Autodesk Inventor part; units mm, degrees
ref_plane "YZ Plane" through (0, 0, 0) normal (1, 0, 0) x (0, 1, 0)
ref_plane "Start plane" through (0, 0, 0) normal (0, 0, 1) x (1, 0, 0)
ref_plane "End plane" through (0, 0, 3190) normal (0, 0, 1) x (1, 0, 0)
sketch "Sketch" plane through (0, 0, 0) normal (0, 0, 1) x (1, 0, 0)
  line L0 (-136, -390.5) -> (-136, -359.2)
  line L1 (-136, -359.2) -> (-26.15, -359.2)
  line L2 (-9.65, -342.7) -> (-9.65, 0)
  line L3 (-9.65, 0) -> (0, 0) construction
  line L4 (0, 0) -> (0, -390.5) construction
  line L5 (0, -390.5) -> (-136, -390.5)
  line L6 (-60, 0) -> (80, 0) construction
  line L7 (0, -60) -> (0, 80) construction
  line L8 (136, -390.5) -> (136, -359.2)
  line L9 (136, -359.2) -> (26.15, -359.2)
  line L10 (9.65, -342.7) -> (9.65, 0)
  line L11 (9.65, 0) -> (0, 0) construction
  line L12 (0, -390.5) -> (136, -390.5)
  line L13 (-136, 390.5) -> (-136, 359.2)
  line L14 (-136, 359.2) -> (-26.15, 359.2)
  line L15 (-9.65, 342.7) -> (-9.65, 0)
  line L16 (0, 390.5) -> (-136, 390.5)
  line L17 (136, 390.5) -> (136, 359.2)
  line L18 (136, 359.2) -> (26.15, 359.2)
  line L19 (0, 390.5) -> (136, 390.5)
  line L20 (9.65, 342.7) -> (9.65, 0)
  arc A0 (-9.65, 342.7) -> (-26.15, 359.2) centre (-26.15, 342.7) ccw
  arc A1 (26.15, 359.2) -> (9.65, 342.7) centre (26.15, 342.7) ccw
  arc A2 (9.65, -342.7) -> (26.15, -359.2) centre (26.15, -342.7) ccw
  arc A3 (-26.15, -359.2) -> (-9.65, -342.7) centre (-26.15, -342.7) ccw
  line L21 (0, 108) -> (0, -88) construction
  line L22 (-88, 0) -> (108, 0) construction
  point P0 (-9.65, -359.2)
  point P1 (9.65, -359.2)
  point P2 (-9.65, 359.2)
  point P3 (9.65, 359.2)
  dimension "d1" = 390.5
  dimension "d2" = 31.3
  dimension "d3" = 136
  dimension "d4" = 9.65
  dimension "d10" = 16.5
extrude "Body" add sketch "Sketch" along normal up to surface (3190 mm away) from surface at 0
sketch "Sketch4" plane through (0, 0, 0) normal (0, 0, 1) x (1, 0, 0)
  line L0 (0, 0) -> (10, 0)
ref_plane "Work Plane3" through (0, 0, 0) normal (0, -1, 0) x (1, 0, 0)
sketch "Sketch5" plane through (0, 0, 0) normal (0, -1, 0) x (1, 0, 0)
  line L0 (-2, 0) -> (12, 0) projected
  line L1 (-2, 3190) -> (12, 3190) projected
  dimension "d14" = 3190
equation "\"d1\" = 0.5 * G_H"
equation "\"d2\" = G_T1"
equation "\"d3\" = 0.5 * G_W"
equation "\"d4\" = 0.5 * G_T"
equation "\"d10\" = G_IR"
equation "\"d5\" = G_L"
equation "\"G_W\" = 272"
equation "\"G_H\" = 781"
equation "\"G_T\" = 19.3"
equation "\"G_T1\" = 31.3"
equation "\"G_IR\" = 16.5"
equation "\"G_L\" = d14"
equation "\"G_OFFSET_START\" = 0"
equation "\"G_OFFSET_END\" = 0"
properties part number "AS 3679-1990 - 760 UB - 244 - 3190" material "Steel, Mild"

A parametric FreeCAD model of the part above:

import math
import FreeCAD as App
import Part
import Sketcher
Q = App.Units.Quantity

doc = App.newDocument("Part")
body = doc.addObject("PartDesign::Body", "Body")

# Sketch on XY plane
sketch1 = body.newObject("Sketcher::SketchObject", "Sketch")
sketch1.AttachmentSupport = (doc.getObject("XY_Plane"), [""])
sketch1.MapMode = "FlatFace"
sketch1.addGeometry(Part.LineSegment(App.Vector(-136, -359, 0), App.Vector(-136, -390, 0)), False)
sketch1.addGeometry(Part.LineSegment(App.Vector(-136, -390, 0), App.Vector(136, -390, 0)), False)
sketch1.addGeometry(Part.LineSegment(App.Vector(136, -390, 0), App.Vector(136, -359, 0)), False)
sketch1.addGeometry(Part.LineSegment(App.Vector(136, -359, 0), App.Vector(26, -359, 0)), False)
sketch1.addGeometry(Part.ArcOfCircle(Part.Circle(App.Vector(26, -343, 0), App.Vector(0, 0, 1), 16), math.radians(180), math.radians(270)), False)
sketch1.addGeometry(Part.LineSegment(App.Vector(10, -343, 0), App.Vector(10, 343, 0)), False)
sketch1.addGeometry(Part.ArcOfCircle(Part.Circle(App.Vector(26, 343, 0), App.Vector(0, 0, 1), 16), math.radians(90), math.radians(180)), False)
sketch1.addGeometry(Part.LineSegment(App.Vector(26, 359, 0), App.Vector(136, 359, 0)), False)
sketch1.addGeometry(Part.LineSegment(App.Vector(136, 359, 0), App.Vector(136, 390, 0)), False)
sketch1.addGeometry(Part.LineSegment(App.Vector(136, 390, 0), App.Vector(-136, 390, 0)), False)
sketch1.addGeometry(Part.LineSegment(App.Vector(-136, 390, 0), App.Vector(-136, 359, 0)), False)
sketch1.addGeometry(Part.LineSegment(App.Vector(-136, 359, 0), App.Vector(-26, 359, 0)), False)
sketch1.addGeometry(Part.ArcOfCircle(Part.Circle(App.Vector(-26, 343, 0), App.Vector(0, 0, 1), 16), math.radians(0), math.radians(90)), False)
sketch1.addGeometry(Part.LineSegment(App.Vector(-10, 343, 0), App.Vector(-10, -343, 0)), False)
sketch1.addGeometry(Part.ArcOfCircle(Part.Circle(App.Vector(-26, -343, 0), App.Vector(0, 0, 1), 16), math.radians(-90), math.radians(0)), False)
sketch1.addGeometry(Part.LineSegment(App.Vector(-26, -359, 0), App.Vector(-136, -359, 0)), False)
sketch1.addConstraint(Sketcher.Constraint("Coincident", 0, 2, 1, 1))
sketch1.addConstraint(Sketcher.Constraint("Coincident", 1, 2, 2, 1))
sketch1.addConstraint(Sketcher.Constraint("Coincident", 2, 2, 3, 1))
sketch1.addConstraint(Sketcher.Constraint("Tangent", 3, 2, 4, 2))
sketch1.addConstraint(Sketcher.Constraint("Tangent", 4, 1, 5, 1))
sketch1.addConstraint(Sketcher.Constraint("Tangent", 5, 2, 6, 2))
sketch1.addConstraint(Sketcher.Constraint("Tangent", 6, 1, 7, 1))
sketch1.addConstraint(Sketcher.Constraint("Coincident", 7, 2, 8, 1))
sketch1.addConstraint(Sketcher.Constraint("Coincident", 8, 2, 9, 1))
sketch1.addConstraint(Sketcher.Constraint("Coincident", 9, 2, 10, 1))
sketch1.addConstraint(Sketcher.Constraint("Coincident", 10, 2, 11, 1))
sketch1.addConstraint(Sketcher.Constraint("Tangent", 11, 2, 12, 2))
sketch1.addConstraint(Sketcher.Constraint("Tangent", 12, 1, 13, 1))
sketch1.addConstraint(Sketcher.Constraint("Tangent", 13, 2, 14, 2))
sketch1.addConstraint(Sketcher.Constraint("Tangent", 14, 1, 15, 1))
sketch1.addConstraint(Sketcher.Constraint("Coincident", 15, 2, 0, 1))
sketch1.addConstraint(Sketcher.Constraint("Vertical", 0))
sketch1.addConstraint(Sketcher.Constraint("Horizontal", 1))
sketch1.addConstraint(Sketcher.Constraint("Vertical", 2))
sketch1.addConstraint(Sketcher.Constraint("Horizontal", 3))
sketch1.addConstraint(Sketcher.Constraint("Vertical", 5))
sketch1.addConstraint(Sketcher.Constraint("Horizontal", 7))
sketch1.addConstraint(Sketcher.Constraint("Vertical", 8))
sketch1.addConstraint(Sketcher.Constraint("Horizontal", 9))
sketch1.addConstraint(Sketcher.Constraint("Vertical", 10))
sketch1.addConstraint(Sketcher.Constraint("Horizontal", 11))
sketch1.addConstraint(Sketcher.Constraint("Vertical", 13))
sketch1.addConstraint(Sketcher.Constraint("Horizontal", 15))
sketch1.addConstraint(Sketcher.Constraint("Equal", 4, 6))
sketch1.addConstraint(Sketcher.Constraint("Equal", 6, 12))
sketch1.addConstraint(Sketcher.Constraint("Equal", 12, 14))
sketch1.addConstraint(Sketcher.Constraint("Symmetric", 4, 3, 12, 3, -1, 1))
sketch1.addConstraint(Sketcher.Constraint("Symmetric", 0, 2, 8, 2, -1, 1))
sketch1.addConstraint(Sketcher.Constraint("Symmetric", 7, 2, 10, 2, -2))
sketch1.addConstraint(Sketcher.Constraint("Symmetric", 2, 2, 15, 2, -2))
sketch1.addConstraint(Sketcher.Constraint("Radius", 4, Q("16.5 mm")))
sketch1.addConstraint(Sketcher.Constraint("DistanceY", 0, 2, 0, 1, Q("31.3 mm")))
sketch1.addConstraint(Sketcher.Constraint("DistanceX", 0, 2, -1, 1, Q("136 mm")))
sketch1.addConstraint(Sketcher.Constraint("DistanceY", 0, 2, -1, 1, Q("390.5 mm")))
sketch1.addConstraint(Sketcher.Constraint("DistanceX", -1, 1, 4, 1, Q("9.65 mm")))
pad1 = body.newObject("PartDesign::Pad", "Pad")
pad1.Profile = sketch1
pad1.Length = 3190

doc.recompute()
